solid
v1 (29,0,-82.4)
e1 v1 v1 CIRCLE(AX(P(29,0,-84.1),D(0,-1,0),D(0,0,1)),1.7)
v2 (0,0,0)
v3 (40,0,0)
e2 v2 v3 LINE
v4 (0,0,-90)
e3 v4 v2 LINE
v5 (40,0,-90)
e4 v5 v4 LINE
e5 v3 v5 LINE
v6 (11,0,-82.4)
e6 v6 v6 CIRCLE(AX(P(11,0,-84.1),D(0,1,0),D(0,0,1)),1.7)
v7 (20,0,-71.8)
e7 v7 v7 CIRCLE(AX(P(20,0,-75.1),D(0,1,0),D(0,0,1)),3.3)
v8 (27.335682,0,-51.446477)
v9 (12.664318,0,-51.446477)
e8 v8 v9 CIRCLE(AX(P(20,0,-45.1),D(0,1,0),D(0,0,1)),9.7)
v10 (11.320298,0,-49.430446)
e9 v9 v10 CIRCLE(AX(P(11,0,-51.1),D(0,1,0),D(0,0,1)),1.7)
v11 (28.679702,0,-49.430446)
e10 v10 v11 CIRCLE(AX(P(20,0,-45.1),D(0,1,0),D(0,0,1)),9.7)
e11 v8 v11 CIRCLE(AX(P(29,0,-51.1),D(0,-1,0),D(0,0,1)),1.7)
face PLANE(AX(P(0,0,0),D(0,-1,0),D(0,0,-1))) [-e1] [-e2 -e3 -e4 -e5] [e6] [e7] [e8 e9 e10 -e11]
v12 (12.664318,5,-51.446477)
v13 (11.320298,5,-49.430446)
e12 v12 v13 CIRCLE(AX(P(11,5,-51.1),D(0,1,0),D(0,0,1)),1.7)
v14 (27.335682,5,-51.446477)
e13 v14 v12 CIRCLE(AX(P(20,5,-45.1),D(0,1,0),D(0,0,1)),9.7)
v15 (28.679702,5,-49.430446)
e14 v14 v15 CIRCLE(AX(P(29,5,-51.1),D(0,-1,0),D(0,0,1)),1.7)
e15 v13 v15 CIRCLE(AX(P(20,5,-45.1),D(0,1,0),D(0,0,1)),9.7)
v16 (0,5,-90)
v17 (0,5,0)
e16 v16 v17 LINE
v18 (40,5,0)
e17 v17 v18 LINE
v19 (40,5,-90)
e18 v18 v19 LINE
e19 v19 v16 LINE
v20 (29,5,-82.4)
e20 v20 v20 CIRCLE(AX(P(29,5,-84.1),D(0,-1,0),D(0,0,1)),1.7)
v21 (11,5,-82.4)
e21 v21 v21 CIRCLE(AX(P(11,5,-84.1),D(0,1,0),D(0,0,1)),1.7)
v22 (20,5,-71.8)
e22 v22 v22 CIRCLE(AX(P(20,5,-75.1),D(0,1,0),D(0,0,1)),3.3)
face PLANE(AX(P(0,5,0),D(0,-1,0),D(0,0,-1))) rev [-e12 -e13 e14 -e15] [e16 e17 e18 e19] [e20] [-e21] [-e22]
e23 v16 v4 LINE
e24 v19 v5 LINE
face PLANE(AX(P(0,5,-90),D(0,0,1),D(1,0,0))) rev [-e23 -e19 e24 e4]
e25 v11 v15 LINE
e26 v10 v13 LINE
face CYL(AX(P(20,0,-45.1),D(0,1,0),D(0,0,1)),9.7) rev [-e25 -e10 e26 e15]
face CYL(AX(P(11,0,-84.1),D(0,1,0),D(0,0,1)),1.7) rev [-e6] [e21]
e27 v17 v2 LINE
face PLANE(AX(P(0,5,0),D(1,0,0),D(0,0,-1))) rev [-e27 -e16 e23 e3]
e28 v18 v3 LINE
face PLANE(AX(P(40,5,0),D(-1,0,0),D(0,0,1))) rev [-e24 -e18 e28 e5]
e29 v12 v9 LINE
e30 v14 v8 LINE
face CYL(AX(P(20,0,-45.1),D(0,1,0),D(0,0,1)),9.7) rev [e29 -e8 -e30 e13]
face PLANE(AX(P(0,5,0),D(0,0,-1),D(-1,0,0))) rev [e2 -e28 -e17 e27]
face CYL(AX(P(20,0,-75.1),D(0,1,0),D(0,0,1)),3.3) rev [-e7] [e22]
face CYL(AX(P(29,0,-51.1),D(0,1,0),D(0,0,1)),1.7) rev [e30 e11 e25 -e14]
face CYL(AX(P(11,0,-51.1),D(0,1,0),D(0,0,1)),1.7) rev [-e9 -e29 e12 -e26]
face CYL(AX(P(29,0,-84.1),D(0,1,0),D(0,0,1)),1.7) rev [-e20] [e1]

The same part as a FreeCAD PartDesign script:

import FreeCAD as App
import Part
import Sketcher

V = App.Vector
Q = App.Units.Quantity

doc = App.newDocument("Part")
body = doc.addObject("PartDesign::Body", "Body")

sketch1 = body.newObject("Sketcher::SketchObject", "Sketch")
sketch1.AttachmentSupport = (doc.getObject("XZ_Plane"), [""])
sketch1.MapMode = "FlatFace"
sketch1.addGeometry([
    Part.LineSegment(V(0, -90, 0), V(0, 0, 0)),
    Part.LineSegment(V(0, 0, 0), V(40, 0, 0)),
    Part.LineSegment(V(40, 0, 0), V(40, -90, 0)),
    Part.LineSegment(V(40, -90, 0), V(0, -90, 0)),
], False)
sketch1.addConstraint([
    Sketcher.Constraint("Coincident", 0, 2, 1, 1),
    Sketcher.Constraint("Coincident", 1, 2, 2, 1),
    Sketcher.Constraint("Coincident", 2, 2, 3, 1),
    Sketcher.Constraint("Coincident", 3, 2, 0, 1),
    Sketcher.Constraint("Vertical", 0),
    Sketcher.Constraint("Horizontal", 1),
    Sketcher.Constraint("Vertical", 2),
    Sketcher.Constraint("Horizontal", 3),
    Sketcher.Constraint("Coincident", 0, 2, -1, 1),
    Sketcher.Constraint("DistanceX", 1, 1, 1, 2, Q("40 mm")),
    Sketcher.Constraint("DistanceY", 0, 1, 0, 2, Q("90 mm")),
])
pad1 = body.newObject("PartDesign::Pad", "Pad")
pad1.Profile = sketch1
pad1.Length = 5
pad1.Reversed = True

sketch2 = body.newObject("Sketcher::SketchObject", "Sketch001")
sketch2.AttachmentSupport = (doc.getObject("XZ_Plane"), [""])
sketch2.MapMode = "FlatFace"
sketch2.AttachmentOffset = App.Placement(V(0, 0, -5), App.Rotation())
sketch2.addGeometry([
    Part.Circle(V(20, -75.1, 0), V(0, 0, 1), 3.3),
    Part.Circle(V(20, -45.1, 0), V(0, 0, 1), 9.7),
], False)
sketch2.addConstraint([
    Sketcher.Constraint("Vertical", 0, 3, 1, 3),
    Sketcher.Constraint("Diameter", 0, Q("6.6 mm")),
    Sketcher.Constraint("Diameter", 1, Q("19.4 mm")),
    Sketcher.Constraint("DistanceX", -1, 1, 0, 3, Q("20 mm")),
    Sketcher.Constraint("DistanceY", 0, 3, 1, 3, Q("30 mm")),
    Sketcher.Constraint("DistanceY", 0, 3, -1, 1, Q("75.1 mm")),
])
pocket1 = body.newObject("PartDesign::Pocket", "Pocket")
pocket1.Profile = sketch2
pocket1.Type = "ThroughAll"
pocket1.Reversed = True

sketch3 = body.newObject("Sketcher::SketchObject", "Sketch002")
sketch3.AttachmentSupport = (doc.getObject("XZ_Plane"), [""])
sketch3.MapMode = "FlatFace"
sketch3.AttachmentOffset = App.Placement(V(0, 0, -5), App.Rotation())
sketch3.addGeometry([
    Part.Circle(V(11, -84.1, 0), V(0, 0, 1), 1.7),
    Part.Circle(V(11, -51.1, 0), V(0, 0, 1), 1.7),
], False)
sketch3.addConstraint([
    Sketcher.Constraint("Equal", 0, 1),
    Sketcher.Constraint("Vertical", 0, 3, 1, 3),
    Sketcher.Constraint("Diameter", 0, Q("3.4 mm")),
    Sketcher.Constraint("DistanceX", -1, 1, 0, 3, Q("11 mm")),
    Sketcher.Constraint("DistanceY", 0, 3, 1, 3, Q("33 mm")),
    Sketcher.Constraint("DistanceY", 0, 3, -1, 1, Q("84.1 mm")),
])
pocket2 = body.newObject("PartDesign::Pocket", "Pocket001")
pocket2.Profile = sketch3
pocket2.Type = "ThroughAll"
pocket2.Reversed = True
doc.recompute()

datumplane = body.newObject("PartDesign::Plane", "DatumPlane")
datumplane.AttachmentSupport = (doc.getObject("YZ_Plane"), [""])
datumplane.MapMode = "FlatFace"
datumplane.AttachmentOffset = App.Placement(V(0, 0, 20), App.Rotation())
mirrored = body.newObject("PartDesign::Mirrored", "Mirrored")
mirrored.Originals = [pocket2]
mirrored.MirrorPlane = (datumplane, [""])
body.Tip = mirrored

doc.recompute()
